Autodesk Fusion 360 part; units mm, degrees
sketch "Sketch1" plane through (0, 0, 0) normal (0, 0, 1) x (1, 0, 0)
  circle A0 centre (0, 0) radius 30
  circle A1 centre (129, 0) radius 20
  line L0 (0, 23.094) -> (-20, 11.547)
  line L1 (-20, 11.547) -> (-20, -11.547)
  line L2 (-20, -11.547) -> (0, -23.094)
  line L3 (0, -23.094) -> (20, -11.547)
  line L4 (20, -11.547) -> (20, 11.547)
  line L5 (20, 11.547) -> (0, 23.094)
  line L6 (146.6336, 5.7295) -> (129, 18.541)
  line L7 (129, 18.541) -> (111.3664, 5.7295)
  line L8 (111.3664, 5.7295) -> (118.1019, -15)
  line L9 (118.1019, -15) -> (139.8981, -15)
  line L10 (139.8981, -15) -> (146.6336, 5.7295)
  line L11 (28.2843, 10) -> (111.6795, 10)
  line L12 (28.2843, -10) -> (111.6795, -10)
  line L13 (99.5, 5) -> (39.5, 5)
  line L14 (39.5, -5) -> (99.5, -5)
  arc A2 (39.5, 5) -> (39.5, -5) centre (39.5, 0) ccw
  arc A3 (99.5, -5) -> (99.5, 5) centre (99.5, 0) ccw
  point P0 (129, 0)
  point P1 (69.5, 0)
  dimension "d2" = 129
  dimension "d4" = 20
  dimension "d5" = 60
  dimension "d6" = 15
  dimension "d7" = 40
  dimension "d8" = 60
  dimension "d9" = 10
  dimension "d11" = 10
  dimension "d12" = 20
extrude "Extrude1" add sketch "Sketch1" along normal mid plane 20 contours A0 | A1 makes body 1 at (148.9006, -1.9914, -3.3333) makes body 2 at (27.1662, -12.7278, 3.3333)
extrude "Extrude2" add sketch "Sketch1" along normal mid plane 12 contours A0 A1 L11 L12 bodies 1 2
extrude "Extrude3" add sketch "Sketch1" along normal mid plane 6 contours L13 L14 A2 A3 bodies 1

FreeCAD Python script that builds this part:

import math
import FreeCAD as App
import Part
import Sketcher

V = App.Vector
Q = App.Units.Quantity

doc = App.newDocument("Part")
body = doc.addObject("PartDesign::Body", "Body")
body.AllowCompound = True

# Sketch on XY plane
sketch1 = doc.addObject("Sketcher::SketchObject", "Sketch")
body.addObject(sketch1)
sketch1.AttachmentSupport = (doc.XY_Plane, [""])
sketch1.MapMode = "FlatFace"
sketch1.addGeometry(Part.Circle(V(0, 0, 0), V(0, 0, 1), 30), False)
sketch1.addGeometry(Part.LineSegment(V(-20, 11.547, 0), V(0, 23.094, 0)), False)
sketch1.addGeometry(Part.LineSegment(V(0, 23.094, 0), V(20, 11.547, 0)), False)
sketch1.addGeometry(Part.LineSegment(V(20, 11.547, 0), V(20, -11.547, 0)), False)
sketch1.addGeometry(Part.LineSegment(V(20, -11.547, 0), V(0, -23.094, 0)), False)
sketch1.addGeometry(Part.LineSegment(V(0, -23.094, 0), V(-20, -11.547, 0)), False)
sketch1.addGeometry(Part.LineSegment(V(-20, -11.547, 0), V(-20, 11.547, 0)), False)
sketch1.addGeometry(Part.Circle(V(129, 0, 0), V(0, 0, 1), 20), False)
sketch1.addGeometry(Part.LineSegment(V(129, 18.541, 0), V(146.6336, 5.7295, 0)), False)
sketch1.addGeometry(Part.LineSegment(V(146.6336, 5.7295, 0), V(139.8981, -15, 0)), False)
sketch1.addGeometry(Part.LineSegment(V(139.8981, -15, 0), V(118.1019, -15, 0)), False)
sketch1.addGeometry(Part.LineSegment(V(118.1019, -15, 0), V(111.3664, 5.7295, 0)), False)
sketch1.addGeometry(Part.LineSegment(V(111.3664, 5.7295, 0), V(129, 18.541, 0)), False)
sketch1.addConstraint(Sketcher.Constraint("Coincident", 1, 2, 2, 1))
sketch1.addConstraint(Sketcher.Constraint("Coincident", 2, 2, 3, 1))
sketch1.addConstraint(Sketcher.Constraint("Coincident", 3, 2, 4, 1))
sketch1.addConstraint(Sketcher.Constraint("Coincident", 4, 2, 5, 1))
sketch1.addConstraint(Sketcher.Constraint("Coincident", 5, 2, 6, 1))
sketch1.addConstraint(Sketcher.Constraint("Coincident", 6, 2, 1, 1))
sketch1.addConstraint(Sketcher.Constraint("Coincident", 8, 2, 9, 1))
sketch1.addConstraint(Sketcher.Constraint("Coincident", 9, 2, 10, 1))
sketch1.addConstraint(Sketcher.Constraint("Coincident", 10, 2, 11, 1))
sketch1.addConstraint(Sketcher.Constraint("Coincident", 11, 2, 12, 1))
sketch1.addConstraint(Sketcher.Constraint("Coincident", 12, 2, 8, 1))
sketch1.addConstraint(Sketcher.Constraint("Vertical", 3))
sketch1.addConstraint(Sketcher.Constraint("Vertical", 6))
sketch1.addConstraint(Sketcher.Constraint("Horizontal", 10))
sketch1.addConstraint(Sketcher.Constraint("Coincident", 0, 3, -1, 1))
sketch1.addConstraint(Sketcher.Constraint("Symmetric", 1, 2, 4, 2, -1, 1))
sketch1.addConstraint(Sketcher.Constraint("Symmetric", 2, 2, 5, 2, -1, 1))
sketch1.addConstraint(Sketcher.Constraint("PointOnObject", 7, 3, -1))
sketch1.addConstraint(Sketcher.Constraint("PointOnObject", 1, 2, -2))
sketch1.addConstraint(Sketcher.Constraint("Parallel", 1, 4))
sketch1.addConstraint(Sketcher.Constraint("Horizontal", 3, 2, 5, 2))
sketch1.addConstraint(Sketcher.Constraint("Horizontal", 8, 2, 11, 2))
sketch1.addConstraint(Sketcher.Constraint("Vertical", 7, 3, 12, 2))
sketch1.addConstraint(Sketcher.Constraint("Equal", 8, 9))
sketch1.addConstraint(Sketcher.Constraint("Equal", 9, 11))
sketch1.addConstraint(Sketcher.Constraint("Equal", 11, 12))
sketch1.addConstraint(Sketcher.Constraint("Diameter", 0, Q("60 mm")))
sketch1.addConstraint(Sketcher.Constraint("Diameter", 7, Q("40 mm")))
sketch1.addConstraint(Sketcher.Constraint("DistanceX", -1, 1, 7, 3, Q("129 mm")))
sketch1.addConstraint(Sketcher.Constraint("DistanceX", -1, 1, 2, 2, Q("20 mm")))
sketch1.addConstraint(Sketcher.Constraint("DistanceY", 9, 2, -1, 1, Q("15 mm")))
sketch1.addConstraint(Sketcher.Constraint("Angle", 1, Q("30 deg")))
sketch1.addConstraint(Sketcher.Constraint("Angle", 8, Q("-35.9999 deg")))
sketch1.addConstraint(Sketcher.Constraint("Angle", 9, Q("-108.0002 deg")))
sketch1.addConstraint(Sketcher.Constraint("DistanceY", 3, 2, 3, 1, Q("23.094 mm")))
sketch1.addConstraint(Sketcher.Constraint("DistanceX", 10, 2, 10, 1, Q("21.7962 mm")))
pad1 = doc.addObject("PartDesign::Pad", "Pad")
body.addObject(pad1)
pad1.Profile = sketch1
pad1.Length = 20
pad1.Midplane = True

# Sketch on XY plane
sketch2 = doc.addObject("Sketcher::SketchObject", "Sketch001")
body.addObject(sketch2)
sketch2.AttachmentSupport = (doc.XY_Plane, [""])
sketch2.MapMode = "FlatFace"
sketch2.addGeometry(Part.ArcOfCircle(Part.Circle(V(0, 0, 0), V(0, 0, 1), 30), math.radians(-19.471202), math.radians(19.471202)), False)
sketch2.addGeometry(Part.LineSegment(V(28.2843, -10, 0), V(111.6795, -10, 0)), False)
sketch2.addGeometry(Part.ArcOfCircle(Part.Circle(V(129, 0, 0), V(0, 0, 1), 20), math.radians(149.999988), math.radians(210.000012)), False)
sketch2.addGeometry(Part.LineSegment(V(111.6795, 10, 0), V(28.2843, 10, 0)), False)
sketch2.addGeometry(Part.LineSegment(V(39.5, 5, 0), V(99.5, 5, 0)), False)
sketch2.addGeometry(Part.ArcOfCircle(Part.Circle(V(99.5, 0, 0), V(0, 0, 1), 5), math.radians(-90), math.radians(90)), False)
sketch2.addGeometry(Part.LineSegment(V(99.5, -5, 0), V(39.5, -5, 0)), False)
sketch2.addGeometry(Part.ArcOfCircle(Part.Circle(V(39.5, 0, 0), V(0, 0, 1), 5), math.radians(90), math.radians(270)), False)
sketch2.addConstraint(Sketcher.Constraint("Coincident", 0, 1, 1, 1))
sketch2.addConstraint(Sketcher.Constraint("Coincident", 1, 2, 2, 2))
sketch2.addConstraint(Sketcher.Constraint("Coincident", 2, 1, 3, 1))
sketch2.addConstraint(Sketcher.Constraint("Coincident", 3, 2, 0, 2))
sketch2.addConstraint(Sketcher.Constraint("Tangent", 4, 2, 5, 2))
sketch2.addConstraint(Sketcher.Constraint("Tangent", 5, 1, 6, 1))
sketch2.addConstraint(Sketcher.Constraint("Tangent", 6, 2, 7, 2))
sketch2.addConstraint(Sketcher.Constraint("Tangent", 7, 1, 4, 1))
sketch2.addConstraint(Sketcher.Constraint("Horizontal", 1))
sketch2.addConstraint(Sketcher.Constraint("Horizontal", 3))
sketch2.addConstraint(Sketcher.Constraint("Horizontal", 4))
sketch2.addConstraint(Sketcher.Constraint("Horizontal", 6))
sketch2.addConstraint(Sketcher.Constraint("Coincident", 0, 3, -1, 1))
sketch2.addConstraint(Sketcher.Constraint("Symmetric", 1, 2, 2, 1, -1))
sketch2.addConstraint(Sketcher.Constraint("PointOnObject", 5, 3, -1))
sketch2.addConstraint(Sketcher.Constraint("Radius", 0, Q("30 mm")))
sketch2.addConstraint(Sketcher.Constraint("Radius", 2, Q("20 mm")))
sketch2.addConstraint(Sketcher.Constraint("Radius", 5, Q("5 mm")))
sketch2.addConstraint(Sketcher.Constraint("DistanceX", 4, 1, 4, 2, Q("60 mm")))
sketch2.addConstraint(Sketcher.Constraint("DistanceX", -1, 1, 2, 3, Q("129 mm")))
sketch2.addConstraint(Sketcher.Constraint("DistanceY", 0, 1, -1, 1, Q("10 mm")))
sketch2.addConstraint(Sketcher.Constraint("DistanceX", -1, 1, 5, 3, Q("99.5 mm")))
pad2 = doc.addObject("PartDesign::Pad", "Pad001")
body.addObject(pad2)
pad2.Profile = sketch2
pad2.Length = 12
pad2.Midplane = True

# Sketch on XY plane
sketch3 = doc.addObject("Sketcher::SketchObject", "Sketch002")
body.addObject(sketch3)
sketch3.AttachmentSupport = (doc.XY_Plane, [""])
sketch3.MapMode = "FlatFace"
sketch3.addGeometry(Part.ArcOfCircle(Part.Circle(V(99.5, 0, 0), V(0, 0, 1), 5), math.radians(-90), math.radians(90)), False)
sketch3.addGeometry(Part.LineSegment(V(99.5, 5, 0), V(39.5, 5, 0)), False)
sketch3.addGeometry(Part.ArcOfCircle(Part.Circle(V(39.5, 0, 0), V(0, 0, 1), 5), math.radians(90), math.radians(270)), False)
sketch3.addGeometry(Part.LineSegment(V(39.5, -5, 0), V(99.5, -5, 0)), False)
sketch3.addConstraint(Sketcher.Constraint("Tangent", 0, 2, 1, 1))
sketch3.addConstraint(Sketcher.Constraint("Tangent", 1, 2, 2, 1))
sketch3.addConstraint(Sketcher.Constraint("Tangent", 2, 2, 3, 1))
sketch3.addConstraint(Sketcher.Constraint("Tangent", 3, 2, 0, 1))
sketch3.addConstraint(Sketcher.Constraint("Horizontal", 1))
sketch3.addConstraint(Sketcher.Constraint("Horizontal", 3))
sketch3.addConstraint(Sketcher.Constraint("PointOnObject", 0, 3, -1))
sketch3.addConstraint(Sketcher.Constraint("Radius", 0, Q("5 mm")))
sketch3.addConstraint(Sketcher.Constraint("DistanceX", 1, 2, 1, 1, Q("60 mm")))
sketch3.addConstraint(Sketcher.Constraint("DistanceX", -1, 1, 0, 3, Q("99.5 mm")))
pad3 = doc.addObject("PartDesign::Pad", "Pad002")
body.addObject(pad3)
pad3.Profile = sketch3
pad3.Length = 6
pad3.Midplane = True

doc.recompute()
